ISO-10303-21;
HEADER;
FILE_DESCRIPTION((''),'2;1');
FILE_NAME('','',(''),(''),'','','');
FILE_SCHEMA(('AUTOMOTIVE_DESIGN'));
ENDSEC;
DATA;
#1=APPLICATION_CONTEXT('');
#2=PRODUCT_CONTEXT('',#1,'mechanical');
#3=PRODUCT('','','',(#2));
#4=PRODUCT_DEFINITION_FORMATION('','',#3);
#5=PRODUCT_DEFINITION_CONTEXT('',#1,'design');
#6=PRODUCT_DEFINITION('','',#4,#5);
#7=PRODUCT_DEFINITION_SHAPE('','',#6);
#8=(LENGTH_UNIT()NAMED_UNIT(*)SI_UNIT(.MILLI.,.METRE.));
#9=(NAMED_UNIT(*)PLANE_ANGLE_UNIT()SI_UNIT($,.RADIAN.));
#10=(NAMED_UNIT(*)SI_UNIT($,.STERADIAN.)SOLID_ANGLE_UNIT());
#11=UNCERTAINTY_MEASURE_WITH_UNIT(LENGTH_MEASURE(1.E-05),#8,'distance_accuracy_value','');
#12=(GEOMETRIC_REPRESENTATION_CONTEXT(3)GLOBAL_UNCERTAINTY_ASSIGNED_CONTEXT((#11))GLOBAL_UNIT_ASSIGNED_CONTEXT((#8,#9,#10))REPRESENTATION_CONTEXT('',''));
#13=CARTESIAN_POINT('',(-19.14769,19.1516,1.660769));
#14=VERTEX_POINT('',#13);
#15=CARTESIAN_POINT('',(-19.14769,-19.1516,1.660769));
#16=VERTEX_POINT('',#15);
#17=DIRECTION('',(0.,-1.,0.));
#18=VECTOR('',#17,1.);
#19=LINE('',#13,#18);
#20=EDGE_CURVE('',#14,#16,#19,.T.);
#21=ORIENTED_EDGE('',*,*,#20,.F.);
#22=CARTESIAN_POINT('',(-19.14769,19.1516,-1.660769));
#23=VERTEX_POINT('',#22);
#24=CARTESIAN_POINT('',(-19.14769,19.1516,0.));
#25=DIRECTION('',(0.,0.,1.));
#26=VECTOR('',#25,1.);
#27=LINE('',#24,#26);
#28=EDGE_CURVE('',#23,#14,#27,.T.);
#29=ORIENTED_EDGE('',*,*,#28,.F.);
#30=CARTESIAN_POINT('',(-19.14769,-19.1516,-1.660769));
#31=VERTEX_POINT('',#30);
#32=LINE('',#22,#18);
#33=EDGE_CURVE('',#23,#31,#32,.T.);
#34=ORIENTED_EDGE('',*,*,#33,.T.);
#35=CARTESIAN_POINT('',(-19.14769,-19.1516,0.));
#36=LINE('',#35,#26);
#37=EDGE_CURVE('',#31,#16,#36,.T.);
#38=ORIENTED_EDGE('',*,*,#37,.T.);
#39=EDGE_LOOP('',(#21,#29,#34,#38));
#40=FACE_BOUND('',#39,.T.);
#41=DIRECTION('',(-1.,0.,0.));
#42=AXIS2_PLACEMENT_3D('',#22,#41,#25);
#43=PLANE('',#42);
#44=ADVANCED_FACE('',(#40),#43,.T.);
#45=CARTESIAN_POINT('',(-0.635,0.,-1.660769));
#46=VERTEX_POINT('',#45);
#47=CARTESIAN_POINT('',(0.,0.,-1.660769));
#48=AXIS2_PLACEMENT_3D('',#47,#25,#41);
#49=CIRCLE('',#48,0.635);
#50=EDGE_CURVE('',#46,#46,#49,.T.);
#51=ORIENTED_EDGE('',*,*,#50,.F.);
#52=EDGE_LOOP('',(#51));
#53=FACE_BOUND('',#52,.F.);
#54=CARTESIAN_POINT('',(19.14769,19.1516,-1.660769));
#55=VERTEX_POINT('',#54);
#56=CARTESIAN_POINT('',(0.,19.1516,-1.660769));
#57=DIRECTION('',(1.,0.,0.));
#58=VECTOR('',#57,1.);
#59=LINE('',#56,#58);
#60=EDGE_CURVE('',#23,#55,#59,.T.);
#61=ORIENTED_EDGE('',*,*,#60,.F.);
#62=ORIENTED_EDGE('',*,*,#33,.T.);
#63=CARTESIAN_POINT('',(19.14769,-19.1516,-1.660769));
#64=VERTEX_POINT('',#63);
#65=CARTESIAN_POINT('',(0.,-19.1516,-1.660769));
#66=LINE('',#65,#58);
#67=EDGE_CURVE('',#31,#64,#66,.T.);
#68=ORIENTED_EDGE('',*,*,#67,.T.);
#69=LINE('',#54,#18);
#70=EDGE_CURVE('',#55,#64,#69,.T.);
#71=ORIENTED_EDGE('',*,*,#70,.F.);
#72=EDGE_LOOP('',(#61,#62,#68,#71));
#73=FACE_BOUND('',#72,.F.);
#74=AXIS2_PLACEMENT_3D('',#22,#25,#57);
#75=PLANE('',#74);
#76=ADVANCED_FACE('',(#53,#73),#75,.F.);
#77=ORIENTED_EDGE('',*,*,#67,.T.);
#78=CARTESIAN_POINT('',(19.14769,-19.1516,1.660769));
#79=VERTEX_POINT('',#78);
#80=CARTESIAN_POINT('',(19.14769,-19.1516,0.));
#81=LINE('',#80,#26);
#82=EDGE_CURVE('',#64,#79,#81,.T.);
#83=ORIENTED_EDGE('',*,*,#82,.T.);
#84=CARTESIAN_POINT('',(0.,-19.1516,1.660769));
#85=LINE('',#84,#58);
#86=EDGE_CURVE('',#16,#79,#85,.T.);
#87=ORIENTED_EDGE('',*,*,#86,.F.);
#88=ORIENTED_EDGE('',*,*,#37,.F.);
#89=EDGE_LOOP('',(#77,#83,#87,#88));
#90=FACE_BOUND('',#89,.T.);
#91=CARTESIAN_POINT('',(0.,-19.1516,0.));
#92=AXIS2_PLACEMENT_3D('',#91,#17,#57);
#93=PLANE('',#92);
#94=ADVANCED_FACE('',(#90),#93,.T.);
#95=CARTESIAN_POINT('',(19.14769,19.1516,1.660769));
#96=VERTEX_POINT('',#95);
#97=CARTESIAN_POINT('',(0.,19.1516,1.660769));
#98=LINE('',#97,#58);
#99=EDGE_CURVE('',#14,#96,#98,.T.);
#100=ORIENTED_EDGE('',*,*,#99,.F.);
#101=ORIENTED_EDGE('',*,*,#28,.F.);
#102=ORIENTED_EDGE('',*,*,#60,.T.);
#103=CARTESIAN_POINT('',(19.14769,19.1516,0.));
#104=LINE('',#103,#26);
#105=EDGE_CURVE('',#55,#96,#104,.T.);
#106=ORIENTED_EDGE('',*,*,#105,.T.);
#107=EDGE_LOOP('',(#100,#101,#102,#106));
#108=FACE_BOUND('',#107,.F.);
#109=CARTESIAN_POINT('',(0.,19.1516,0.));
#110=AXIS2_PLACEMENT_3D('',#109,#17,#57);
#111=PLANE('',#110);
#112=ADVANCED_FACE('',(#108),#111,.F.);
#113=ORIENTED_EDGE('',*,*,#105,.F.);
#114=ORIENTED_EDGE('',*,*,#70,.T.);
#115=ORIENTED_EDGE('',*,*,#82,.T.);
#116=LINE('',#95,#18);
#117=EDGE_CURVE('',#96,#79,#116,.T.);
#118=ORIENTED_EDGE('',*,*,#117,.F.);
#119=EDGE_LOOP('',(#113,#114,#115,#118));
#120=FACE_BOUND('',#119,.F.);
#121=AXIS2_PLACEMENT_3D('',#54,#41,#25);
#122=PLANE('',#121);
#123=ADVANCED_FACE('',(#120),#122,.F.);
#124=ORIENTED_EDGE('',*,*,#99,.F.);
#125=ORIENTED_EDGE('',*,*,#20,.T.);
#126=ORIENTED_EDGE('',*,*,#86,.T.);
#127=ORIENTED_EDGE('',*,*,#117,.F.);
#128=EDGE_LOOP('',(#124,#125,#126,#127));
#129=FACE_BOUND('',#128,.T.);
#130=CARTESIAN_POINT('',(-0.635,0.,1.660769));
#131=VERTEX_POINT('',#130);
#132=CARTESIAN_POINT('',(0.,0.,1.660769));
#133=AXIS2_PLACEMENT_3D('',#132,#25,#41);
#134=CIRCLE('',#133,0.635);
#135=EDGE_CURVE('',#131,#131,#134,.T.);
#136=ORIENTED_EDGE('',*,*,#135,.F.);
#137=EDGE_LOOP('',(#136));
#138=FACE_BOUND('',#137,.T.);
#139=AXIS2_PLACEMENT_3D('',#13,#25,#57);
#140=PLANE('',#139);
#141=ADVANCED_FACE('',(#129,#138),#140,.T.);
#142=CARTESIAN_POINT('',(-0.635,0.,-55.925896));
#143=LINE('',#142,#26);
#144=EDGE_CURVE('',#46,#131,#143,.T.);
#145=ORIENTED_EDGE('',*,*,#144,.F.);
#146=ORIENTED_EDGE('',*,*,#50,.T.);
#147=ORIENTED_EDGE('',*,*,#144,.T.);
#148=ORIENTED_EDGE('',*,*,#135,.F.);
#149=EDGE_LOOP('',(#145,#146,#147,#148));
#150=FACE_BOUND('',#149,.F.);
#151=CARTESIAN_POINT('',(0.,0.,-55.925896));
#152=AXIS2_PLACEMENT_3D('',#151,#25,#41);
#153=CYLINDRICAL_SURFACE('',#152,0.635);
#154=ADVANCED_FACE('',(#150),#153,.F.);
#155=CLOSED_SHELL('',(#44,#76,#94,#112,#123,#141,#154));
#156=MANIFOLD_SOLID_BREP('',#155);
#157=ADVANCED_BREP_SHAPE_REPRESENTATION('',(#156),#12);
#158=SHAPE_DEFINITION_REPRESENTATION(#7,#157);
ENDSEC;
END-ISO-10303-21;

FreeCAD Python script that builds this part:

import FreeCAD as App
import Part
import Sketcher
from FreeCAD import Vector
Q = App.Units.Quantity


def add_polygon(sketch, points):
    """Adds a closed chain of lines whose ends are joined by coincident constraints."""
    first, n = sketch.GeometryCount, len(points)
    for a, b in zip(points, points[1:] + points[:1]):
        sketch.addGeometry(Part.LineSegment(App.Vector(*a, 0), App.Vector(*b, 0)), False)
    for i in range(n):
        sketch.addConstraint(Sketcher.Constraint("Coincident", first + i, 2, first + (i + 1) % n, 1))

doc = App.newDocument("Part")
params = doc.addObject("Spreadsheet::Sheet", "Params")
for row, (alias, value) in enumerate([
    ("pad1_length", "1.508 in"),
    ("sketch2_diameter", "0.05 in"),
    ("hole_diameter", "0.05 in"),
], start=1):
    params.set(f"A{row}", alias)
    params.set(f"B{row}", "=" + value)
    params.setAlias(f"B{row}", alias)

body = doc.addObject("PartDesign::Body", "Body")

# Sketch on XZ plane
sketch1 = doc.addObject("Sketcher::SketchObject", "Sketch")
body.addObject(sketch1)
sketch1.AttachmentSupport = (doc.XZ_Plane, [""])
sketch1.MapMode = "FlatFace"
add_polygon(sketch1, [(-19.1, 1.7), (-19.1, -1.7), (19.1, -1.7), (19.1, 1.7)])  # lines 0-3
sketch1.addConstraint([
    Sketcher.Constraint("Vertical", 0),
    Sketcher.Constraint("Horizontal", 1),
    Sketcher.Constraint("Vertical", 2),
    Sketcher.Constraint("Horizontal", 3),
    Sketcher.Constraint("Symmetric", 0, 2, 2, 2, -1, 1),
    Sketcher.Constraint("DistanceX", 1, 1, 1, 2, Q("38.295381 mm")),
    Sketcher.Constraint("DistanceY", 0, 2, 0, 1, Q("3.321539 mm")),
])
pad1 = doc.addObject("PartDesign::Pad", "Pad")
body.addObject(pad1)
pad1.Profile = sketch1
pad1.setExpression("Length", "Params.pad1_length")
body2 = doc.addObject("PartDesign::Body", "Body001")
doc.recompute()

body.Placement = App.Placement(Vector(0, 19.1516, 0), App.Rotation(Vector(0, 0, 1), 0))
boolean = doc.addObject("PartDesign::Boolean", "Boolean")
body2.addObject(boolean)
boolean.Type = "Fuse"
boolean.addObjects([body])

# Sketch on XY plane
sketch2 = doc.addObject("Sketcher::SketchObject", "Sketch001")
body2.addObject(sketch2)
sketch2.AttachmentSupport = (doc.getObject("XY_Plane001"), [""])
sketch2.MapMode = "FlatFace"
sketch2.AttachmentOffset = App.Placement(Vector(0, 0, -1.660769), App.Rotation())
sketch2.addGeometry(Part.Circle(Vector(0, 0, 0), Vector(0, 0, 1), 0.6), False)
sketch2.addConstraint([
    Sketcher.Constraint("Coincident", 0, 3, -1, 1),
    Sketcher.Constraint("Diameter", 0, Q("0.05 in")),
])
sketch2.setExpression("Constraints[1]", "Params.sketch2_diameter")
doc.recompute()
hole = doc.addObject("PartDesign::Hole", "Hole")
body2.addObject(hole)
hole.Profile = sketch2
hole.ThreadType = "None"
hole.setExpression("Diameter", "Params.hole_diameter")
hole.DepthType = "ThroughAll"
hole.Reversed = True

doc.recompute()
